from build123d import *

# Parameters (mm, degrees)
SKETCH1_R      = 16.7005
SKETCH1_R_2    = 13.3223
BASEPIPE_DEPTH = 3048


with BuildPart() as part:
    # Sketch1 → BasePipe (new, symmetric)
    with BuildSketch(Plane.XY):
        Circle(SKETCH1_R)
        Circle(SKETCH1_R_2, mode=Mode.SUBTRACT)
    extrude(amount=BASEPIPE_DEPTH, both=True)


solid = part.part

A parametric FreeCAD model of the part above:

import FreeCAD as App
import Part
import Sketcher
Q = App.Units.Quantity

doc = App.newDocument("Part")
body = doc.addObject("PartDesign::Body", "Body")

sketch1 = doc.addObject("Sketcher::SketchObject", "Sketch")
body.addObject(sketch1)
sketch1.AttachmentSupport = (doc.XY_Plane, [""])
sketch1.MapMode = "FlatFace"
sketch1.addGeometry(Part.Circle(App.Vector(0, 0, 0), App.Vector(0, 0, 1), 17), False)
sketch1.addGeometry(Part.Circle(App.Vector(0, 0, 0), App.Vector(0, 0, 1), 13), False)
sketch1.addConstraint(Sketcher.Constraint("Coincident", 0, 3, -1, 1))
sketch1.addConstraint(Sketcher.Constraint("Coincident", 1, 3, -1, 1))
sketch1.addConstraint(Sketcher.Constraint("Diameter", 0, Q("1.315 in")))
sketch1.addConstraint(Sketcher.Constraint("Diameter", 1, Q("1.049 in")))
pad1 = doc.addObject("PartDesign::Pad", "Pad")
body.addObject(pad1)
pad1.Profile = sketch1
pad1.Length = Q("240 in")
pad1.Midplane = True

doc.recompute()
